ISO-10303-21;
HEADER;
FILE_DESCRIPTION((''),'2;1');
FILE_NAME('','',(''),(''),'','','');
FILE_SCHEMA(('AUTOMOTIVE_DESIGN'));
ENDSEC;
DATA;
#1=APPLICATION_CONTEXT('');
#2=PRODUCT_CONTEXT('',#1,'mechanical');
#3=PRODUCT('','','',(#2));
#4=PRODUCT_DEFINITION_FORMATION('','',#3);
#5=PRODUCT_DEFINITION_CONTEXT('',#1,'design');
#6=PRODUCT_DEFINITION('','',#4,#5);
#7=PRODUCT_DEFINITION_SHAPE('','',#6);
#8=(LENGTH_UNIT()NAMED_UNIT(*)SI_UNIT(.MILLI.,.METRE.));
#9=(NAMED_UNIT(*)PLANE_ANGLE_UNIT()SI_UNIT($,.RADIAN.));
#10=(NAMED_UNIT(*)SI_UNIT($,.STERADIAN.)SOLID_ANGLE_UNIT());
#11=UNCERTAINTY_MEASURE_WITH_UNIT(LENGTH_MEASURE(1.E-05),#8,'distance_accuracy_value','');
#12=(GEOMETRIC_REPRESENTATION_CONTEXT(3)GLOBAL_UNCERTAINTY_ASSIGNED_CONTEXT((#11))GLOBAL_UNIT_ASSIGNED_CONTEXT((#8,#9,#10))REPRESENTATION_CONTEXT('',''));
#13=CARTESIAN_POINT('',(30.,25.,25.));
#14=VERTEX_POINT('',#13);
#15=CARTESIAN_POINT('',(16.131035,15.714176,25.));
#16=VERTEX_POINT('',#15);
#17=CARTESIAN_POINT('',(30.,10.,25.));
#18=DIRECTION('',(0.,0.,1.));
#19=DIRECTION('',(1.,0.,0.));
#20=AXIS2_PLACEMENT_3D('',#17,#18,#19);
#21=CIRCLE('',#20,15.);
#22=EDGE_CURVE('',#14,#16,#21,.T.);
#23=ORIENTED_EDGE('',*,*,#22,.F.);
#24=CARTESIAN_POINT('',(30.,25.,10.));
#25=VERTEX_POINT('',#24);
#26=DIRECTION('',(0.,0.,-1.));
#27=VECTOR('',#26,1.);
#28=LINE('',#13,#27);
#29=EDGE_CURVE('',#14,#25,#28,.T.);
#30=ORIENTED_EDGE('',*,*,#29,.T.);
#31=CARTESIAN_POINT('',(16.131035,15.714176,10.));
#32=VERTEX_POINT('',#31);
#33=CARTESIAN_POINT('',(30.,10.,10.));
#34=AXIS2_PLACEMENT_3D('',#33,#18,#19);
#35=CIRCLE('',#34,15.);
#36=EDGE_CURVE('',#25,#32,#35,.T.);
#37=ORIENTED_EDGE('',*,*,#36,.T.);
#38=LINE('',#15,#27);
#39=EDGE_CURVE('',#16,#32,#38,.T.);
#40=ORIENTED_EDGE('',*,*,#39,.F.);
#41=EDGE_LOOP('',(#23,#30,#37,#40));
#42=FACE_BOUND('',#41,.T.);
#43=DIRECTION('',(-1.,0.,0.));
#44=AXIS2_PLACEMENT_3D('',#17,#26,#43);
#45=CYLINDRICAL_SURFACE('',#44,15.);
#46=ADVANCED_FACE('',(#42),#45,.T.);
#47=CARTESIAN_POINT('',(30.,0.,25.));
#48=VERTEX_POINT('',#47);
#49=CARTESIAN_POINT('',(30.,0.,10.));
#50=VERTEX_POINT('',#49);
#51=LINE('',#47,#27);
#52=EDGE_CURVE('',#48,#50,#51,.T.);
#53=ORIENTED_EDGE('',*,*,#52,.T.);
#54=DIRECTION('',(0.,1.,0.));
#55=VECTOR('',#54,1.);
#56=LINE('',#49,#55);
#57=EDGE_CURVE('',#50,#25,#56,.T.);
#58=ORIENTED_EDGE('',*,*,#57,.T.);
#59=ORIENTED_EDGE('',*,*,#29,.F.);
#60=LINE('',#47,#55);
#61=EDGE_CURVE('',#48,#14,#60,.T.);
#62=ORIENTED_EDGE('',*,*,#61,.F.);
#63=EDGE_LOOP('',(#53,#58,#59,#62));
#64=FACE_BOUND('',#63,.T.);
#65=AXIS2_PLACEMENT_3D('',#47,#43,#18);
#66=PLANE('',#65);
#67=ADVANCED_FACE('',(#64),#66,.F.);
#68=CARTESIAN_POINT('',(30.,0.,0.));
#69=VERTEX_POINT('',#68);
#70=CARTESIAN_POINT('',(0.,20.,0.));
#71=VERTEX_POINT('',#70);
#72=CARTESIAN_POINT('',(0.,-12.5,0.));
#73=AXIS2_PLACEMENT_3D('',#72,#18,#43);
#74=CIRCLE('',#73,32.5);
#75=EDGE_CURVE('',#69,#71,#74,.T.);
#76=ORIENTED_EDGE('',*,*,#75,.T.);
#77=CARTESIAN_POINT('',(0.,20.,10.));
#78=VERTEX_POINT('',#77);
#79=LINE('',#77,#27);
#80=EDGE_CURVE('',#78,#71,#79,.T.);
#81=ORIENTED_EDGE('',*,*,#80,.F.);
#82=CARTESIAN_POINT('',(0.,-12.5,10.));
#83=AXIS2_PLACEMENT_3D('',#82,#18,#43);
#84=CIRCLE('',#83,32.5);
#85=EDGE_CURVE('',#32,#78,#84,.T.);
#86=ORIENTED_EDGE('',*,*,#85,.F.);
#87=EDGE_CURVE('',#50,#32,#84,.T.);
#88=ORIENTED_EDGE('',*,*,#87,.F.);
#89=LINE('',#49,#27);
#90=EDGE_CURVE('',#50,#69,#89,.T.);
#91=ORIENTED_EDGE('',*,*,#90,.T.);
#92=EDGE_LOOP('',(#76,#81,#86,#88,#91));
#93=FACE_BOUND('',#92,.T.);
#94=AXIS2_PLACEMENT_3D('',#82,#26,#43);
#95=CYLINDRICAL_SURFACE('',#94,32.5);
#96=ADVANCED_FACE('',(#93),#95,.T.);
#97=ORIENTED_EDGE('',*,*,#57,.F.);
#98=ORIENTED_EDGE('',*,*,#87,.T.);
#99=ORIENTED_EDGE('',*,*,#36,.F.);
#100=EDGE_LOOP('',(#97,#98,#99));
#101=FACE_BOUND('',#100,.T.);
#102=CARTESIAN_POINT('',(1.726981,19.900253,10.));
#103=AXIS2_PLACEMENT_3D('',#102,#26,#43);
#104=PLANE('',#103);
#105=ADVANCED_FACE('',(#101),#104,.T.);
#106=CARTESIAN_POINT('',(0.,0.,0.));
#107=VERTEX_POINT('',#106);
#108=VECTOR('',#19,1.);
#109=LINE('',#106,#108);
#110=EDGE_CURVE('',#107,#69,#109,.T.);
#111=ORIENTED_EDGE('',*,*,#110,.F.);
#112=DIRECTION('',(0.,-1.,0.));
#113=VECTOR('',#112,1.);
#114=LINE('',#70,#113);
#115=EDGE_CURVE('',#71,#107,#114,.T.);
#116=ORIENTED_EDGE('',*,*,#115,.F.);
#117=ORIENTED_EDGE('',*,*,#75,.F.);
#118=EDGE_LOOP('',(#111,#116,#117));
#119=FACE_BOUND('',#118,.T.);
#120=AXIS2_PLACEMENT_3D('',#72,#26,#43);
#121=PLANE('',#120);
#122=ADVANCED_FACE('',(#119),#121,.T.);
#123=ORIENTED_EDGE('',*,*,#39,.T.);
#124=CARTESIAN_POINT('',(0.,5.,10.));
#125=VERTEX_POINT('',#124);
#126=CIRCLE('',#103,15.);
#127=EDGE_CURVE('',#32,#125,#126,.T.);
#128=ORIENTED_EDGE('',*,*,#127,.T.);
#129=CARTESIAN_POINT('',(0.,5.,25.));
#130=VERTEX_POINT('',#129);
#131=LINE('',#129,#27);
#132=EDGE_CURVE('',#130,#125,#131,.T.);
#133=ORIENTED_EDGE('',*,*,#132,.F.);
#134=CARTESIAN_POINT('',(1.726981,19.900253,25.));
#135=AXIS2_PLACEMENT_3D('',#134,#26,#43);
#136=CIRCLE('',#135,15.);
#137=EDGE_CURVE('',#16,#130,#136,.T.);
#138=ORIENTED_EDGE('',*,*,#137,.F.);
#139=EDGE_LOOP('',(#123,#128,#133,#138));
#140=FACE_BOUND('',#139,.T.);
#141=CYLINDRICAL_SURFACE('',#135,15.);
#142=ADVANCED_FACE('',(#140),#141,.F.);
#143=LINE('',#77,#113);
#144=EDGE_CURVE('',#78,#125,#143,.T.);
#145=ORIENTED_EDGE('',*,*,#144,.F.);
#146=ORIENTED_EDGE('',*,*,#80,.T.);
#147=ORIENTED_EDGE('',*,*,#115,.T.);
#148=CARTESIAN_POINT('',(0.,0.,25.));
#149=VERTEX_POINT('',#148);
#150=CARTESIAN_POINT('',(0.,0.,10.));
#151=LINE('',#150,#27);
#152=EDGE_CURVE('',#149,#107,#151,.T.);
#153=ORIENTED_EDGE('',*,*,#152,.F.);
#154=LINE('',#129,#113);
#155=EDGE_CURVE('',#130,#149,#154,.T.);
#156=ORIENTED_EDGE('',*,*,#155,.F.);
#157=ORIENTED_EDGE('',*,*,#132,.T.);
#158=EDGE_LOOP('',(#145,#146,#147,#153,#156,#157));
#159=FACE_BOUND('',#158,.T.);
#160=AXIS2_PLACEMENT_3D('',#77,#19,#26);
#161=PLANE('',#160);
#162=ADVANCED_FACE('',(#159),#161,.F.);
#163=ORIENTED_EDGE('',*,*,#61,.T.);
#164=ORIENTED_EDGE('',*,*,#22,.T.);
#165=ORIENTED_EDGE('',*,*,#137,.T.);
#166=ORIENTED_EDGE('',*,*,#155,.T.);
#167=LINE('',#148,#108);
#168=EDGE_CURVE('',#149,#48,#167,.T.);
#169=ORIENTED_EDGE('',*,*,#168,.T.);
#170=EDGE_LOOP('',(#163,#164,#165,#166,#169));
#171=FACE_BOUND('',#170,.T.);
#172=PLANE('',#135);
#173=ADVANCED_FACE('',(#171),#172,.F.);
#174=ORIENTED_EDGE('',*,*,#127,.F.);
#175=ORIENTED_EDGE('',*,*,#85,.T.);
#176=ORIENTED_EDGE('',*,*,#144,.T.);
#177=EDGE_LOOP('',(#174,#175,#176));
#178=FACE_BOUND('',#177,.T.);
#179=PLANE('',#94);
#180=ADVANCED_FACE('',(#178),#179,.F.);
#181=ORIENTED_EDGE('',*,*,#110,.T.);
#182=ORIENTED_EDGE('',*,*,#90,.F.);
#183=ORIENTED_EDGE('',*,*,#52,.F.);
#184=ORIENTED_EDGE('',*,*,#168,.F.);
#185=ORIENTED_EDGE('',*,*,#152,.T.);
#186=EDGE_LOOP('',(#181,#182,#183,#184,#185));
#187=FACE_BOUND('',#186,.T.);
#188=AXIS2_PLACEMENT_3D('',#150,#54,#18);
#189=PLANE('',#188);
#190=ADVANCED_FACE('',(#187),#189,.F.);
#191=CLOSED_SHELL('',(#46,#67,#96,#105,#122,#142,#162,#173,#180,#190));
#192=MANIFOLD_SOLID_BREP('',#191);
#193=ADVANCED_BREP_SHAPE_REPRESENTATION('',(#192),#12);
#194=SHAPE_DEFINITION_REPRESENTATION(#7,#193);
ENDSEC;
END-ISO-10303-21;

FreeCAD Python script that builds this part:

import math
import FreeCAD as App
import Part
import Sketcher

V = App.Vector

doc = App.newDocument("Part")
body = doc.addObject("PartDesign::Body", "Body")

# Sketch on XY plane
sketch1 = body.newObject("Sketcher::SketchObject", "Sketch")
sketch1.AttachmentSupport = (doc.getObject("XY_Plane"), [""])
sketch1.MapMode = "FlatFace"
sketch1.addGeometry(Part.LineSegment(V(0, 20, 0), V(0, 0, 0)), False)
sketch1.addGeometry(Part.LineSegment(V(0, 0, 0), V(30, 0, 0)), False)
sketch1.addGeometry(Part.ArcOfCircle(Part.Circle(V(0, -12.5, 0), V(0, 0, 1), 32.5), math.radians(22.619865), math.radians(90)), False)
sketch1.addConstraint(Sketcher.Constraint("Coincident", 0, 2, 1, 1))
sketch1.addConstraint(Sketcher.Constraint("Coincident", 1, 2, 2, 1))
sketch1.addConstraint(Sketcher.Constraint("Coincident", 2, 2, 0, 1))
sketch1.addConstraint(Sketcher.Constraint("Vertical", 0))
sketch1.addConstraint(Sketcher.Constraint("Horizontal", 1))
sketch1.addConstraint(Sketcher.Constraint("Coincident", 0, 2, -1, 1))
sketch1.addConstraint(Sketcher.Constraint("PointOnObject", 2, 3, -2))
sketch1.addConstraint(Sketcher.Constraint("Radius", 2, 32.5))
sketch1.addConstraint(Sketcher.Constraint("DistanceX", 1, 1, 1, 2, 30.0))
pad1 = body.newObject("PartDesign::Pad", "Pad")
pad1.Profile = sketch1
pad1.Length = 10

# Sketch on XY plane
sketch2 = body.newObject("Sketcher::SketchObject", "Sketch001")
sketch2.AttachmentSupport = (doc.getObject("XY_Plane"), [""])
sketch2.MapMode = "FlatFace"
sketch2.AttachmentOffset = App.Placement(V(0, 0, 10), App.Rotation())
sketch2.addGeometry(Part.LineSegment(V(0, 5, 0), V(0, 0, 0)), False)
sketch2.addGeometry(Part.LineSegment(V(0, 0, 0), V(30, 0, 0)), False)
sketch2.addGeometry(Part.LineSegment(V(30, 0, 0), V(30, 25, 0)), False)
sketch2.addGeometry(Part.ArcOfCircle(Part.Circle(V(30, 10, 0), V(0, 0, 1), 15), math.radians(90), math.radians(157.607766)), False)
sketch2.addGeometry(Part.ArcOfCircle(Part.Circle(V(1.726981, 19.900253, 0), V(0, 0, 1), 15), math.radians(-96.611244), math.radians(-16.204815)), False)
sketch2.addConstraint(Sketcher.Constraint("Coincident", 0, 2, 1, 1))
sketch2.addConstraint(Sketcher.Constraint("Coincident", 1, 2, 2, 1))
sketch2.addConstraint(Sketcher.Constraint("Coincident", 2, 2, 3, 1))
sketch2.addConstraint(Sketcher.Constraint("Coincident", 3, 2, 4, 2))
sketch2.addConstraint(Sketcher.Constraint("Coincident", 4, 1, 0, 1))
sketch2.addConstraint(Sketcher.Constraint("Vertical", 0))
sketch2.addConstraint(Sketcher.Constraint("Horizontal", 1))
sketch2.addConstraint(Sketcher.Constraint("Vertical", 2))
sketch2.addConstraint(Sketcher.Constraint("Coincident", 0, 2, -1, 1))
sketch2.addConstraint(Sketcher.Constraint("Equal", 3, 4))
sketch2.addConstraint(Sketcher.Constraint("Vertical", 3, 3, 1, 2))
sketch2.addConstraint(Sketcher.Constraint("Radius", 3, 15.0))
sketch2.addConstraint(Sketcher.Constraint("DistanceX", 1, 1, 1, 2, 30.0))
sketch2.addConstraint(Sketcher.Constraint("DistanceY", 0, 2, 0, 1, 5.0))
sketch2.addConstraint(Sketcher.Constraint("DistanceY", 2, 1, 2, 2, 25.0))
sketch2.addConstraint(Sketcher.Constraint("DistanceX", -1, 1, 4, 3, 1.726981))
pad2 = body.newObject("PartDesign::Pad", "Pad001")
pad2.Profile = sketch2
pad2.Length = 15

doc.recompute()
